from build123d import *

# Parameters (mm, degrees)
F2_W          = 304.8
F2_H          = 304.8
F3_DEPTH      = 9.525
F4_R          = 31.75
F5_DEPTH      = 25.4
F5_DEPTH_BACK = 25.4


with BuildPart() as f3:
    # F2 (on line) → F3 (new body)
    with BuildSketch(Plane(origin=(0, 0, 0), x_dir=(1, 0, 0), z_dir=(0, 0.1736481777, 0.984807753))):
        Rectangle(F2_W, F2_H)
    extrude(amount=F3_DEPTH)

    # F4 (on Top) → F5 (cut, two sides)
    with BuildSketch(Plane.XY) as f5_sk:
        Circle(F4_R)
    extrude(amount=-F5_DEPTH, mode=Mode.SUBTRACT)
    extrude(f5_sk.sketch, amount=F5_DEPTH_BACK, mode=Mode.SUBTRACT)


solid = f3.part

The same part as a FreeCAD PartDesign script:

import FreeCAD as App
import Part
import Sketcher

V = App.Vector
Q = App.Units.Quantity


def add_polygon(sketch, points):
    """Adds a closed chain of lines whose ends are joined by coincident constraints."""
    first, n = sketch.GeometryCount, len(points)
    for a, b in zip(points, points[1:] + points[:1]):
        sketch.addGeometry(Part.LineSegment(App.Vector(*a, 0), App.Vector(*b, 0)), False)
    for i in range(n):
        sketch.addConstraint(Sketcher.Constraint("Coincident", first + i, 2, first + (i + 1) % n, 1))

doc = App.newDocument("Part")
body = doc.addObject("PartDesign::Body", "Body")

sketch1 = doc.addObject("Sketcher::SketchObject", "Sketch")
body.addObject(sketch1)
sketch1.Placement = App.Placement(V(0, 0, 0), App.Rotation(V(1, 0, 0), V(0, 0.984807753, -0.173648178), V(0, 0.173648178, 0.984807753), "ZXY"))
add_polygon(sketch1, [(-152, 152), (-152, -152), (152, -152), (152, 152)])
sketch1.addConstraint(Sketcher.Constraint("Vertical", 0))
sketch1.addConstraint(Sketcher.Constraint("Horizontal", 1))
sketch1.addConstraint(Sketcher.Constraint("Vertical", 2))
sketch1.addConstraint(Sketcher.Constraint("Horizontal", 3))
sketch1.addConstraint(Sketcher.Constraint("Symmetric", 0, 2, 2, 2, -1, 1))
sketch1.addConstraint(Sketcher.Constraint("Equal", 3, 0))
sketch1.addConstraint(Sketcher.Constraint("DistanceX", 1, 1, 1, 2, Q("12 in")))
pad1 = doc.addObject("PartDesign::Pad", "Pad")
body.addObject(pad1)
pad1.Profile = sketch1
pad1.Length = Q("0.375 in")

sketch2 = doc.addObject("Sketcher::SketchObject", "Sketch001")
body.addObject(sketch2)
sketch2.AttachmentSupport = (doc.XY_Plane, [""])
sketch2.MapMode = "FlatFace"
sketch2.addGeometry(Part.Circle(V(0, 0, 0), V(0, 0, 1), 32), False)
sketch2.addConstraint(Sketcher.Constraint("Coincident", 0, 3, -1, 1))
sketch2.addConstraint(Sketcher.Constraint("Diameter", 0, Q("2.5 in")))
pocket1 = doc.addObject("PartDesign::Pocket", "Pocket")
body.addObject(pocket1)
pocket1.Profile = sketch2
pocket1.Type = "ThroughAll"
pocket1.Midplane = True

doc.recompute()
